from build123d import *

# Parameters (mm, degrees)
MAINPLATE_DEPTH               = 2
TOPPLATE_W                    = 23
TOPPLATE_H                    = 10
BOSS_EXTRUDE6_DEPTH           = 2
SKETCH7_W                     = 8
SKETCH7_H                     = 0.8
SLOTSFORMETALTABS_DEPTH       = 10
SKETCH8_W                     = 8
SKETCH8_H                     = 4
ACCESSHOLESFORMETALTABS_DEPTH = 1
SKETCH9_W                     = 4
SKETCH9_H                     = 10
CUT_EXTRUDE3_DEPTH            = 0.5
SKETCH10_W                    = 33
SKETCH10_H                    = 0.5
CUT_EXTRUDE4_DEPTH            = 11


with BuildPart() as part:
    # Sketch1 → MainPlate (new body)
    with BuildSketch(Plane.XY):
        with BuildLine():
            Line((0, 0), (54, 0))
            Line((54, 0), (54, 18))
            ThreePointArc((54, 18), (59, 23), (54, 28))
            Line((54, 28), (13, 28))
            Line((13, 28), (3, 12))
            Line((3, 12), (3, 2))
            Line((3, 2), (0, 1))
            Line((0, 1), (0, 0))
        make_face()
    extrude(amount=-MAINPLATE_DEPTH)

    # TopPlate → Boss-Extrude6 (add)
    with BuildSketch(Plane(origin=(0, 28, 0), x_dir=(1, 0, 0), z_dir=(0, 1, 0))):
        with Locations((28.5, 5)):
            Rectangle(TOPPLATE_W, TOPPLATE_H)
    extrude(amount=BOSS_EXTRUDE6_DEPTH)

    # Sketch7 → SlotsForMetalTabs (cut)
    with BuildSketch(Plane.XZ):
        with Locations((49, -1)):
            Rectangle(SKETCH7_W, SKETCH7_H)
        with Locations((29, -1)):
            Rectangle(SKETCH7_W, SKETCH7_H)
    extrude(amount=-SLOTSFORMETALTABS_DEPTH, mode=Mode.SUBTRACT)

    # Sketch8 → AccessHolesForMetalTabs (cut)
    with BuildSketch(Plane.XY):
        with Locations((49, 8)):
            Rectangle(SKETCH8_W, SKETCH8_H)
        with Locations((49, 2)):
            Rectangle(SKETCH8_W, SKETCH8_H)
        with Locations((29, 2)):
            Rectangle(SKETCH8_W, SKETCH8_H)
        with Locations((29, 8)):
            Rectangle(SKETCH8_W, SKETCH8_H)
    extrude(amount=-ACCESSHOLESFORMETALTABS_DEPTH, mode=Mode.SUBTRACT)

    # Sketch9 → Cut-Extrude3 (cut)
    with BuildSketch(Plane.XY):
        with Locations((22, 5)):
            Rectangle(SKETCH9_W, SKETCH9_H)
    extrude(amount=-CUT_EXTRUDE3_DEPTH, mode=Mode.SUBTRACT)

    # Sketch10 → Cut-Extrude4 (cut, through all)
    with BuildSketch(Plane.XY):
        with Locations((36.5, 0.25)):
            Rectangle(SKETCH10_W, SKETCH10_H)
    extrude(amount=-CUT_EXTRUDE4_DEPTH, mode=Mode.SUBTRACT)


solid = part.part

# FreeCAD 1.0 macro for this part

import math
import FreeCAD as App
import Part
import Sketcher
Q = App.Units.Quantity


def add_polygon(sketch, points):
    """Adds a closed chain of lines whose ends are joined by coincident constraints."""
    first, n = sketch.GeometryCount, len(points)
    for a, b in zip(points, points[1:] + points[:1]):
        sketch.addGeometry(Part.LineSegment(App.Vector(*a, 0), App.Vector(*b, 0)), False)
    for i in range(n):
        sketch.addConstraint(Sketcher.Constraint("Coincident", first + i, 2, first + (i + 1) % n, 1))

doc = App.newDocument("Part")
params = doc.addObject("Spreadsheet::Sheet", "Params")
for row, (alias, value) in enumerate([
    ("sketch1_radius", "5 mm"),
    ("sketch1_width", "54 mm"),
    ("sketch1_width2", "41 mm"),
    ("sketch1_height", "18 mm"),
    ("sketch1_height2", "10 mm"),
    ("pad1_length", "2 mm"),
    ("sketch2_width", "23 mm"),
    ("sketch2_height", "10 mm"),
    ("pad2_length", "2 mm"),
    ("sketch3_width", "8 mm"),
    ("sketch3_height", "0.8 mm"),
    ("pocket1_length", "10 mm"),
    ("sketch4_width", "8 mm"),
    ("sketch4_height", "4 mm"),
    ("pocket2_length", "1 mm"),
    ("sketch5_width", "4 mm"),
    ("sketch5_height", "10 mm"),
    ("pocket3_length", "0.5 mm"),
    ("sketch6_width", "33 mm"),
    ("sketch6_height", "0.5 mm"),
], start=1):
    params.set(f"A{row}", alias)
    params.set(f"B{row}", "=" + value)
    params.setAlias(f"B{row}", alias)

body = doc.addObject("PartDesign::Body", "Body")

# Sketch on XY plane
sketch1 = body.newObject("Sketcher::SketchObject", "Sketch")
sketch1.AttachmentSupport = (doc.getObject("XY_Plane"), [""])
sketch1.MapMode = "FlatFace"
sketch1.addGeometry(Part.LineSegment(App.Vector(0, 0, 0), App.Vector(54, 0, 0)), False)
sketch1.addGeometry(Part.LineSegment(App.Vector(54, 0, 0), App.Vector(54, 18, 0)), False)
sketch1.addGeometry(Part.ArcOfCircle(Part.Circle(App.Vector(54, 23, 0), App.Vector(0, 0, 1), 5), math.radians(-90), math.radians(90)), False)
sketch1.addGeometry(Part.LineSegment(App.Vector(54, 28, 0), App.Vector(13, 28, 0)), False)
sketch1.addGeometry(Part.LineSegment(App.Vector(13, 28, 0), App.Vector(3, 12, 0)), False)
sketch1.addGeometry(Part.LineSegment(App.Vector(3, 12, 0), App.Vector(3, 2, 0)), False)
sketch1.addGeometry(Part.LineSegment(App.Vector(3, 2, 0), App.Vector(0, 1, 0)), False)
sketch1.addGeometry(Part.LineSegment(App.Vector(0, 1, 0), App.Vector(0, 0, 0)), False)
sketch1.addConstraint(Sketcher.Constraint("Coincident", 0, 2, 1, 1))
sketch1.addConstraint(Sketcher.Constraint("Coincident", 1, 2, 2, 1))
sketch1.addConstraint(Sketcher.Constraint("Tangent", 2, 2, 3, 1))
sketch1.addConstraint(Sketcher.Constraint("Coincident", 3, 2, 4, 1))
sketch1.addConstraint(Sketcher.Constraint("Coincident", 4, 2, 5, 1))
sketch1.addConstraint(Sketcher.Constraint("Coincident", 5, 2, 6, 1))
sketch1.addConstraint(Sketcher.Constraint("Coincident", 6, 2, 7, 1))
sketch1.addConstraint(Sketcher.Constraint("Coincident", 7, 2, 0, 1))
sketch1.addConstraint(Sketcher.Constraint("Horizontal", 0))
sketch1.addConstraint(Sketcher.Constraint("Vertical", 1))
sketch1.addConstraint(Sketcher.Constraint("Horizontal", 3))
sketch1.addConstraint(Sketcher.Constraint("Vertical", 5))
sketch1.addConstraint(Sketcher.Constraint("Vertical", 7))
sketch1.addConstraint(Sketcher.Constraint("Coincident", 7, 2, -1, 1))
sketch1.addConstraint(Sketcher.Constraint("Vertical", 2, 3, 0, 2))
sketch1.addConstraint(Sketcher.Constraint("Radius", 2, Q("5 mm")))
sketch1.addConstraint(Sketcher.Constraint("DistanceX", 0, 1, 0, 2, Q("54 mm")))
sketch1.addConstraint(Sketcher.Constraint("DistanceX", 3, 2, 3, 1, Q("41 mm")))
sketch1.addConstraint(Sketcher.Constraint("DistanceY", 1, 1, 1, 2, Q("18 mm")))
sketch1.addConstraint(Sketcher.Constraint("DistanceY", 5, 2, 5, 1, Q("10 mm")))
sketch1.addConstraint(Sketcher.Constraint("DistanceY", 7, 2, 7, 1, Q("1 mm")))
sketch1.addConstraint(Sketcher.Constraint("DistanceX", -1, 1, 4, 2, Q("3 mm")))
sketch1.addConstraint(Sketcher.Constraint("DistanceY", -1, 1, 4, 2, Q("12 mm")))
sketch1.setExpression("Constraints[15]", "Params.sketch1_radius")
sketch1.setExpression("Constraints[16]", "Params.sketch1_width")
sketch1.setExpression("Constraints[17]", "Params.sketch1_width2")
sketch1.setExpression("Constraints[18]", "Params.sketch1_height")
sketch1.setExpression("Constraints[19]", "Params.sketch1_height2")
pad1 = body.newObject("PartDesign::Pad", "Pad")
pad1.Profile = sketch1
pad1.setExpression("Length", "Params.pad1_length")
pad1.Reversed = True

# Sketch on XZ plane
sketch2 = body.newObject("Sketcher::SketchObject", "Sketch001")
sketch2.AttachmentSupport = (doc.getObject("XZ_Plane"), [""])
sketch2.MapMode = "FlatFace"
sketch2.AttachmentOffset = App.Placement(App.Vector(0, 0, -28), App.Rotation())
add_polygon(sketch2, [(17, -10), (17, 0), (40, 0), (40, -10)])  # lines 0-3
sketch2.addConstraint(Sketcher.Constraint("Vertical", 0))
sketch2.addConstraint(Sketcher.Constraint("Horizontal", 1))
sketch2.addConstraint(Sketcher.Constraint("Vertical", 2))
sketch2.addConstraint(Sketcher.Constraint("Horizontal", 3))
sketch2.addConstraint(Sketcher.Constraint("PointOnObject", 0, 2, -1))
sketch2.addConstraint(Sketcher.Constraint("DistanceX", 1, 1, 1, 2, Q("23 mm")))
sketch2.addConstraint(Sketcher.Constraint("DistanceY", 0, 1, 0, 2, Q("10 mm")))
sketch2.addConstraint(Sketcher.Constraint("DistanceX", -1, 1, 0, 2, Q("17 mm")))
sketch2.setExpression("Constraints[9]", "Params.sketch2_width")
sketch2.setExpression("Constraints[10]", "Params.sketch2_height")
pad2 = body.newObject("PartDesign::Pad", "Pad001")
pad2.Profile = sketch2
pad2.setExpression("Length", "Params.pad2_length")
pad2.Reversed = True

# Sketch on XZ plane
sketch3 = body.newObject("Sketcher::SketchObject", "Sketch002")
sketch3.AttachmentSupport = (doc.getObject("XZ_Plane"), [""])
sketch3.MapMode = "FlatFace"
add_polygon(sketch3, [(45, -0.6), (45, -1.4), (53, -1.4), (53, -0.6)])  # lines 0-3
add_polygon(sketch3, [(25, -0.6), (25, -1.4), (33, -1.4), (33, -0.6)])  # lines 4-7
sketch3.addConstraint(Sketcher.Constraint("Vertical", 0))
sketch3.addConstraint(Sketcher.Constraint("Horizontal", 1))
sketch3.addConstraint(Sketcher.Constraint("Vertical", 2))
sketch3.addConstraint(Sketcher.Constraint("Horizontal", 3))
sketch3.addConstraint(Sketcher.Constraint("Vertical", 4))
sketch3.addConstraint(Sketcher.Constraint("Horizontal", 5))
sketch3.addConstraint(Sketcher.Constraint("Vertical", 6))
sketch3.addConstraint(Sketcher.Constraint("Horizontal", 7))
sketch3.addConstraint(Sketcher.Constraint("Horizontal", 1, 2, 4, 2))
sketch3.addConstraint(Sketcher.Constraint("Horizontal", 3, 2, 6, 2))
sketch3.addConstraint(Sketcher.Constraint("Equal", 3, 5))
sketch3.addConstraint(Sketcher.Constraint("DistanceX", 1, 1, 1, 2, Q("8 mm")))
sketch3.addConstraint(Sketcher.Constraint("DistanceY", 0, 2, 0, 1, Q("0.8 mm")))
sketch3.addConstraint(Sketcher.Constraint("DistanceX", -1, 1, 0, 2, Q("45 mm")))
sketch3.addConstraint(Sketcher.Constraint("DistanceX", -1, 1, 4, 2, Q("25 mm")))
sketch3.addConstraint(Sketcher.Constraint("DistanceY", 0, 2, -1, 1, Q("1.4 mm")))
sketch3.setExpression("Constraints[19]", "Params.sketch3_width")
sketch3.setExpression("Constraints[20]", "Params.sketch3_height")
pocket1 = body.newObject("PartDesign::Pocket", "Pocket")
pocket1.Profile = sketch3
pocket1.setExpression("Length", "Params.pocket1_length")

# Sketch on XY plane
sketch4 = body.newObject("Sketcher::SketchObject", "Sketch003")
sketch4.AttachmentSupport = (doc.getObject("XY_Plane"), [""])
sketch4.MapMode = "FlatFace"
add_polygon(sketch4, [(45, 10), (45, 6), (53, 6), (53, 10)])  # lines 0-3
add_polygon(sketch4, [(45, 4), (45, 0), (53, 0), (53, 4)])  # lines 4-7
add_polygon(sketch4, [(25, 4), (25, 0), (33, 0), (33, 4)])  # lines 8-11
add_polygon(sketch4, [(25, 10), (25, 6), (33, 6), (33, 10)])  # lines 12-15
sketch4.addConstraint(Sketcher.Constraint("Vertical", 0))
sketch4.addConstraint(Sketcher.Constraint("Horizontal", 1))
sketch4.addConstraint(Sketcher.Constraint("Vertical", 2))
sketch4.addConstraint(Sketcher.Constraint("Horizontal", 3))
sketch4.addConstraint(Sketcher.Constraint("Vertical", 4))
sketch4.addConstraint(Sketcher.Constraint("Horizontal", 5))
sketch4.addConstraint(Sketcher.Constraint("Vertical", 6))
sketch4.addConstraint(Sketcher.Constraint("Horizontal", 7))
sketch4.addConstraint(Sketcher.Constraint("Vertical", 8))
sketch4.addConstraint(Sketcher.Constraint("Horizontal", 9))
sketch4.addConstraint(Sketcher.Constraint("Vertical", 10))
sketch4.addConstraint(Sketcher.Constraint("Horizontal", 11))
sketch4.addConstraint(Sketcher.Constraint("Vertical", 12))
sketch4.addConstraint(Sketcher.Constraint("Horizontal", 13))
sketch4.addConstraint(Sketcher.Constraint("Vertical", 14))
sketch4.addConstraint(Sketcher.Constraint("Horizontal", 15))
sketch4.addConstraint(Sketcher.Constraint("PointOnObject", 4, 2, -1))
sketch4.addConstraint(Sketcher.Constraint("PointOnObject", 8, 2, -1))
sketch4.addConstraint(Sketcher.Constraint("Horizontal", 7, 2, 10, 2))
sketch4.addConstraint(Sketcher.Constraint("Horizontal", 1, 2, 12, 2))
sketch4.addConstraint(Sketcher.Constraint("Horizontal", 3, 2, 14, 2))
sketch4.addConstraint(Sketcher.Constraint("Vertical", 3, 2, 4, 2))
sketch4.addConstraint(Sketcher.Constraint("Vertical", 2, 2, 5, 2))
sketch4.addConstraint(Sketcher.Constraint("Vertical", 11, 2, 12, 2))
sketch4.addConstraint(Sketcher.Constraint("Vertical", 10, 2, 13, 2))
sketch4.addConstraint(Sketcher.Constraint("Equal", 7, 9))
sketch4.addConstraint(Sketcher.Constraint("Equal", 2, 4))
sketch4.addConstraint(Sketcher.Constraint("DistanceX", 1, 1, 1, 2, Q("8 mm")))
sketch4.addConstraint(Sketcher.Constraint("DistanceY", 0, 2, 0, 1, Q("4 mm")))
sketch4.addConstraint(Sketcher.Constraint("DistanceX", -1, 1, 0, 2, Q("45 mm")))
sketch4.addConstraint(Sketcher.Constraint("DistanceY", -1, 1, 0, 2, Q("6 mm")))
sketch4.addConstraint(Sketcher.Constraint("DistanceX", -1, 1, 8, 2, Q("25 mm")))
sketch4.setExpression("Constraints[43]", "Params.sketch4_width")
sketch4.setExpression("Constraints[44]", "Params.sketch4_height")
pocket2 = body.newObject("PartDesign::Pocket", "Pocket001")
pocket2.Profile = sketch4
pocket2.setExpression("Length", "Params.pocket2_length")

# Sketch on XY plane
sketch5 = body.newObject("Sketcher::SketchObject", "Sketch004")
sketch5.AttachmentSupport = (doc.getObject("XY_Plane"), [""])
sketch5.MapMode = "FlatFace"
add_polygon(sketch5, [(20, 10), (20, 0), (24, 0), (24, 10)])  # lines 0-3
sketch5.addConstraint(Sketcher.Constraint("Vertical", 0))
sketch5.addConstraint(Sketcher.Constraint("Horizontal", 1))
sketch5.addConstraint(Sketcher.Constraint("Vertical", 2))
sketch5.addConstraint(Sketcher.Constraint("Horizontal", 3))
sketch5.addConstraint(Sketcher.Constraint("PointOnObject", 0, 2, -1))
sketch5.addConstraint(Sketcher.Constraint("DistanceX", 1, 1, 1, 2, Q("4 mm")))
sketch5.addConstraint(Sketcher.Constraint("DistanceY", 0, 2, 0, 1, Q("10 mm")))
sketch5.addConstraint(Sketcher.Constraint("DistanceX", -1, 1, 0, 2, Q("20 mm")))
sketch5.setExpression("Constraints[9]", "Params.sketch5_width")
sketch5.setExpression("Constraints[10]", "Params.sketch5_height")
pocket3 = body.newObject("PartDesign::Pocket", "Pocket002")
pocket3.Profile = sketch5
pocket3.setExpression("Length", "Params.pocket3_length")

# Sketch on XY plane
sketch6 = body.newObject("Sketcher::SketchObject", "Sketch005")
sketch6.AttachmentSupport = (doc.getObject("XY_Plane"), [""])
sketch6.MapMode = "FlatFace"
add_polygon(sketch6, [(20, 0.5), (20, 0), (53, 0), (53, 0.5)])  # lines 0-3
sketch6.addConstraint(Sketcher.Constraint("Vertical", 0))
sketch6.addConstraint(Sketcher.Constraint("Horizontal", 1))
sketch6.addConstraint(Sketcher.Constraint("Vertical", 2))
sketch6.addConstraint(Sketcher.Constraint("Horizontal", 3))
sketch6.addConstraint(Sketcher.Constraint("PointOnObject", 0, 2, -1))
sketch6.addConstraint(Sketcher.Constraint("DistanceX", 1, 1, 1, 2, Q("33 mm")))
sketch6.addConstraint(Sketcher.Constraint("DistanceY", 0, 2, 0, 1, Q("0.5 mm")))
sketch6.addConstraint(Sketcher.Constraint("DistanceX", -1, 1, 0, 2, Q("20 mm")))
sketch6.setExpression("Constraints[9]", "Params.sketch6_width")
sketch6.setExpression("Constraints[10]", "Params.sketch6_height")
pocket4 = body.newObject("PartDesign::Pocket", "Pocket003")
pocket4.Profile = sketch6
pocket4.Type = "ThroughAll"

doc.recompute()
